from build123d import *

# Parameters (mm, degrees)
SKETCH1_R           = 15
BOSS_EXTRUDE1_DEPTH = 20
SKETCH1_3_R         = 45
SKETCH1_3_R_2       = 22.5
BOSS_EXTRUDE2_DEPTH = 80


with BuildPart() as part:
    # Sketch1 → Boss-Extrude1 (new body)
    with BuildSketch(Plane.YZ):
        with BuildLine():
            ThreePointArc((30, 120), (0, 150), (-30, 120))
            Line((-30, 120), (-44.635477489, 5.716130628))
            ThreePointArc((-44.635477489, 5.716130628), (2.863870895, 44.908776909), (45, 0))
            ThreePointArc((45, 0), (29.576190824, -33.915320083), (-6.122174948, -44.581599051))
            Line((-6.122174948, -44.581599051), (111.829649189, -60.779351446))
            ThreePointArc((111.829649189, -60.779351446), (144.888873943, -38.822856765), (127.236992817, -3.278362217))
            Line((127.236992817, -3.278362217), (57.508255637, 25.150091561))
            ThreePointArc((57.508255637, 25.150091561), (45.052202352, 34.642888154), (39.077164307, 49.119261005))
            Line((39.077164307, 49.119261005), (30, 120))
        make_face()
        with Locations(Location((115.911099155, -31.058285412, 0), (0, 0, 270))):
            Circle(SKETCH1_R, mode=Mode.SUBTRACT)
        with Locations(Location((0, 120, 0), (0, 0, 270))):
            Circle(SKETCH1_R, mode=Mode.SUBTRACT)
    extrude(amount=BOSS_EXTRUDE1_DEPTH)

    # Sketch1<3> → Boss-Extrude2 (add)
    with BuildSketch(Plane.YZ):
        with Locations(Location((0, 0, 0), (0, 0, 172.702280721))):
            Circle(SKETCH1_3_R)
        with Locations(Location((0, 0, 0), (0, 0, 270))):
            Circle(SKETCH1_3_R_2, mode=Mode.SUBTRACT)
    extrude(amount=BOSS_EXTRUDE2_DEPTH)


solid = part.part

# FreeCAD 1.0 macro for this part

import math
import FreeCAD as App
import Part
import Sketcher

doc = App.newDocument("Part")
body = doc.addObject("PartDesign::Body", "Body")

sketch1 = body.newObject("Sketcher::SketchObject", "Sketch")
sketch1.AttachmentSupport = (doc.getObject("YZ_Plane"), [""])
sketch1.MapMode = "FlatFace"
sketch1.addGeometry([
    Part.ArcOfCircle(Part.Circle(App.Vector(0, 120, 0), App.Vector(0, 0, 1), 30), math.radians(0), math.radians(180)),
    Part.LineSegment(App.Vector(-30, 120, 0), App.Vector(-45, 6, 0)),
    Part.ArcOfCircle(Part.Circle(App.Vector(0, 0, 0), App.Vector(0, 0, 1), 45), math.radians(0), math.radians(173)),
    Part.ArcOfCircle(Part.Circle(App.Vector(0, 0, 0), App.Vector(0, 0, 1), 45), math.radians(-98), math.radians(0)),
    Part.LineSegment(App.Vector(-6, -45, 0), App.Vector(112, -61, 0)),
    Part.ArcOfCircle(Part.Circle(App.Vector(116, -31, 0), App.Vector(0, 0, 1), 30), math.radians(-98), math.radians(68)),
    Part.LineSegment(App.Vector(127, -3, 0), App.Vector(58, 25, 0)),
    Part.ArcOfCircle(Part.Circle(App.Vector(69, 53, 0), App.Vector(0, 0, 1), 30), math.radians(-173), math.radians(-112)),
    Part.LineSegment(App.Vector(39, 49, 0), App.Vector(30, 120, 0)),
    Part.Circle(App.Vector(116, -31, 0), App.Vector(0, 0, 1), 15),
    Part.Circle(App.Vector(0, 120, 0), App.Vector(0, 0, 1), 15),
], False)
sketch1.addConstraint([
    Sketcher.Constraint("Coincident", 0, 2, 1, 1),
    Sketcher.Constraint("Tangent", 1, 2, 2, 2),
    Sketcher.Constraint("Tangent", 2, 1, 3, 2),
    Sketcher.Constraint("Tangent", 3, 1, 4, 1),
    Sketcher.Constraint("Tangent", 4, 2, 5, 1),
    Sketcher.Constraint("Tangent", 5, 2, 6, 1),
    Sketcher.Constraint("Tangent", 6, 2, 7, 2),
    Sketcher.Constraint("Tangent", 7, 1, 8, 1),
    Sketcher.Constraint("Coincident", 8, 2, 0, 1),
    Sketcher.Constraint("Coincident", 2, 3, -1, 1),
    Sketcher.Constraint("Coincident", 9, 3, 5, 3),
    Sketcher.Constraint("Coincident", 10, 3, 0, 3),
    Sketcher.Constraint("Equal", 2, 3),
    Sketcher.Constraint("Equal", 0, 5),
    Sketcher.Constraint("Equal", 5, 7),
    Sketcher.Constraint("Equal", 9, 10),
    Sketcher.Constraint("Symmetric", 0, 2, 8, 2, -2),
    Sketcher.Constraint("PointOnObject", 2, 1, -1),
    Sketcher.Constraint("Horizontal", 10, 3, 0, 2),
    Sketcher.Constraint("Diameter", 9, 30.0),
    Sketcher.Constraint("Radius", 0, 30.0),
    Sketcher.Constraint("Radius", 2, 45.0),
    Sketcher.Constraint("DistanceY", -1, 1, 0, 3, 120.0),
    Sketcher.Constraint("DistanceX", -1, 1, 5, 3, 115.911099),
    Sketcher.Constraint("DistanceY", 3, 1, -1, 1, 44.581599),
    Sketcher.Constraint("DistanceY", 5, 3, 7, 3, 83.9883),
    Sketcher.Constraint("DistanceX", 7, 3, 4, 2, 42.9955),
])
pad1 = body.newObject("PartDesign::Pad", "Pad")
pad1.Profile = sketch1
pad1.Length = 20

sketch2 = body.newObject("Sketcher::SketchObject", "Sketch001")
sketch2.AttachmentSupport = (doc.getObject("YZ_Plane"), [""])
sketch2.MapMode = "FlatFace"
sketch2.addGeometry([
    Part.Circle(App.Vector(0, 0, 0), App.Vector(0, 0, 1), 45),
    Part.Circle(App.Vector(0, 0, 0), App.Vector(0, 0, 1), 22),
], False)
sketch2.addConstraint([
    Sketcher.Constraint("Coincident", 0, 3, -1, 1),
    Sketcher.Constraint("Coincident", 1, 3, -1, 1),
    Sketcher.Constraint("Diameter", 0, 90.0),
    Sketcher.Constraint("Diameter", 1, 45.0),
])
pad2 = body.newObject("PartDesign::Pad", "Pad001")
pad2.Profile = sketch2
pad2.Length = 80

doc.recompute()
